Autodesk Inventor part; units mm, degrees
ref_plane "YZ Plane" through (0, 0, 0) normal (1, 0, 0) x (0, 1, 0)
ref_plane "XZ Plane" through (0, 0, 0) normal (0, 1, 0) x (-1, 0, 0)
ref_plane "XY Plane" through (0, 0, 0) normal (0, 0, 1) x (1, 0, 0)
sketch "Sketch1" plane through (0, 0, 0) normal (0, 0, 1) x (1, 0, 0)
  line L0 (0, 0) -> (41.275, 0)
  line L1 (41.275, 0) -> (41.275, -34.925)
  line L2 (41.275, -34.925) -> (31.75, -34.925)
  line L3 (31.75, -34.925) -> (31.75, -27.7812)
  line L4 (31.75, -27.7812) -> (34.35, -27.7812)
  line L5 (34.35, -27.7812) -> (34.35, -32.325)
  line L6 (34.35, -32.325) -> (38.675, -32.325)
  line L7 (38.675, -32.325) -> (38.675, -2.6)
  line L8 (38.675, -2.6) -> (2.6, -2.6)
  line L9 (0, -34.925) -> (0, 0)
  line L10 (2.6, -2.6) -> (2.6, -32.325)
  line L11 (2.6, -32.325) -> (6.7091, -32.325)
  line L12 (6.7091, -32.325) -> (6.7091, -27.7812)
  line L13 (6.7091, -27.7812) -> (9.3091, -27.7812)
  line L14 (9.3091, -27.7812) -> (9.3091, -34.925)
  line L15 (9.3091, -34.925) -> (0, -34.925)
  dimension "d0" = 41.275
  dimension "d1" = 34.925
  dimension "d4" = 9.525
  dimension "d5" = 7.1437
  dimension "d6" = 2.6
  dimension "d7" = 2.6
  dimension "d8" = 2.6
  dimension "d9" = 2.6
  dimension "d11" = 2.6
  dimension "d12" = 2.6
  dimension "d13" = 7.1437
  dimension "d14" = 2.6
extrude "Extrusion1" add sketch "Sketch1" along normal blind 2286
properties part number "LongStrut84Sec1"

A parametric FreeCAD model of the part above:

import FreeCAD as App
import Part
import Sketcher
from FreeCAD import Vector
Q = App.Units.Quantity

doc = App.newDocument("Part")
params = doc.addObject("Spreadsheet::Sheet", "Params")
for row, (alias, value) in enumerate([
    ("sketch1_width", "1.625 in"),
    ("sketch1_width2", "0.375 in"),
    ("sketch1_height", "1.375 in"),
    ("sketch1_height2", "0.281252 in"),
    ("pad1_length", "90 in"),
], start=1):
    params.set(f"A{row}", alias)
    params.set(f"B{row}", "=" + value)
    params.setAlias(f"B{row}", alias)

body = doc.addObject("PartDesign::Body", "Body")

# Sketch on XY plane
sketch1 = doc.addObject("Sketcher::SketchObject", "Sketch")
body.addObject(sketch1)
sketch1.AttachmentSupport = (doc.XY_Plane, [""])
sketch1.MapMode = "FlatFace"
sketch1.addGeometry([
    Part.LineSegment(Vector(41.3, 0, 0), Vector(0, 0, 0)),  # 0
    Part.LineSegment(Vector(0, 0, 0), Vector(0, -34.9, 0)),  # 1
    Part.LineSegment(Vector(0, -34.9, 0), Vector(9.3, -34.9, 0)),  # 2
    Part.LineSegment(Vector(9.3, -34.9, 0), Vector(9.3, -27.8, 0)),  # 3
    Part.LineSegment(Vector(9.3, -27.8, 0), Vector(6.7, -27.8, 0)),  # 4
    Part.LineSegment(Vector(6.7, -27.8, 0), Vector(6.7, -32.3, 0)),  # 5
    Part.LineSegment(Vector(6.7, -32.3, 0), Vector(2.6, -32.3, 0)),  # 6
    Part.LineSegment(Vector(2.6, -32.3, 0), Vector(2.6, -2.6, 0)),  # 7
    Part.LineSegment(Vector(2.6, -2.6, 0), Vector(38.7, -2.6, 0)),  # 8
    Part.LineSegment(Vector(38.7, -2.6, 0), Vector(38.7, -32.3, 0)),  # 9
    Part.LineSegment(Vector(38.7, -32.3, 0), Vector(34.4, -32.3, 0)),  # 10
    Part.LineSegment(Vector(34.4, -32.3, 0), Vector(34.4, -27.8, 0)),  # 11
    Part.LineSegment(Vector(34.4, -27.8, 0), Vector(31.8, -27.8, 0)),  # 12
    Part.LineSegment(Vector(31.8, -27.8, 0), Vector(31.8, -34.9, 0)),  # 13
    Part.LineSegment(Vector(31.8, -34.9, 0), Vector(41.3, -34.9, 0)),  # 14
    Part.LineSegment(Vector(41.3, -34.9, 0), Vector(41.3, 0, 0)),  # 15
], False)
sketch1.addConstraint([
    Sketcher.Constraint("Coincident", 0, 2, 1, 1),
    Sketcher.Constraint("Coincident", 1, 2, 2, 1),
    Sketcher.Constraint("Coincident", 2, 2, 3, 1),
    Sketcher.Constraint("Coincident", 3, 2, 4, 1),
    Sketcher.Constraint("Coincident", 4, 2, 5, 1),
    Sketcher.Constraint("Coincident", 5, 2, 6, 1),
    Sketcher.Constraint("Coincident", 6, 2, 7, 1),
    Sketcher.Constraint("Coincident", 7, 2, 8, 1),
    Sketcher.Constraint("Coincident", 8, 2, 9, 1),
    Sketcher.Constraint("Coincident", 9, 2, 10, 1),
    Sketcher.Constraint("Coincident", 10, 2, 11, 1),
    Sketcher.Constraint("Coincident", 11, 2, 12, 1),
    Sketcher.Constraint("Coincident", 12, 2, 13, 1),
    Sketcher.Constraint("Coincident", 13, 2, 14, 1),
    Sketcher.Constraint("Coincident", 14, 2, 15, 1),
    Sketcher.Constraint("Coincident", 15, 2, 0, 1),
    Sketcher.Constraint("Horizontal", 0),
    Sketcher.Constraint("Vertical", 1),
    Sketcher.Constraint("Horizontal", 2),
    Sketcher.Constraint("Vertical", 3),
    Sketcher.Constraint("Horizontal", 4),
    Sketcher.Constraint("Vertical", 5),
    Sketcher.Constraint("Horizontal", 6),
    Sketcher.Constraint("Vertical", 7),
    Sketcher.Constraint("Horizontal", 8),
    Sketcher.Constraint("Vertical", 9),
    Sketcher.Constraint("Horizontal", 10),
    Sketcher.Constraint("Vertical", 11),
    Sketcher.Constraint("Horizontal", 12),
    Sketcher.Constraint("Vertical", 13),
    Sketcher.Constraint("Horizontal", 14),
    Sketcher.Constraint("Vertical", 15),
    Sketcher.Constraint("Coincident", 0, 2, -1, 1),
    Sketcher.Constraint("Horizontal", 6, 2, 9, 2),
    Sketcher.Constraint("Horizontal", 4, 2, 11, 2),
    Sketcher.Constraint("Horizontal", 2, 2, 13, 2),
    Sketcher.Constraint("Equal", 4, 12),
    Sketcher.Constraint("DistanceX", 0, 2, 0, 1, Q("1.625 in")),
    Sketcher.Constraint("DistanceX", 14, 1, 14, 2, Q("0.375 in")),
    Sketcher.Constraint("DistanceY", 1, 2, 1, 1, Q("1.375 in")),
    Sketcher.Constraint("DistanceY", 3, 1, 3, 2, Q("0.281252 in")),
    Sketcher.Constraint("DistanceX", 4, 2, 4, 1, 2.6),
    Sketcher.Constraint("DistanceX", -1, 1, 6, 2, 2.6),
    Sketcher.Constraint("DistanceY", 7, 2, -1, 1, 2.6),
    Sketcher.Constraint("DistanceY", 2, 2, 5, 2, 2.6),
    Sketcher.Constraint("DistanceX", 9, 2, 14, 2, 2.6),
    Sketcher.Constraint("DistanceX", 2, 1, 2, 2, Q("0.3665 in")),
])
sketch1.setExpression("Constraints[37]", "Params.sketch1_width")
sketch1.setExpression("Constraints[38]", "Params.sketch1_width2")
sketch1.setExpression("Constraints[39]", "Params.sketch1_height")
sketch1.setExpression("Constraints[40]", "Params.sketch1_height2")
pad1 = doc.addObject("PartDesign::Pad", "Pad")
body.addObject(pad1)
pad1.Profile = sketch1
pad1.setExpression("Length", "Params.pad1_length")

doc.recompute()
